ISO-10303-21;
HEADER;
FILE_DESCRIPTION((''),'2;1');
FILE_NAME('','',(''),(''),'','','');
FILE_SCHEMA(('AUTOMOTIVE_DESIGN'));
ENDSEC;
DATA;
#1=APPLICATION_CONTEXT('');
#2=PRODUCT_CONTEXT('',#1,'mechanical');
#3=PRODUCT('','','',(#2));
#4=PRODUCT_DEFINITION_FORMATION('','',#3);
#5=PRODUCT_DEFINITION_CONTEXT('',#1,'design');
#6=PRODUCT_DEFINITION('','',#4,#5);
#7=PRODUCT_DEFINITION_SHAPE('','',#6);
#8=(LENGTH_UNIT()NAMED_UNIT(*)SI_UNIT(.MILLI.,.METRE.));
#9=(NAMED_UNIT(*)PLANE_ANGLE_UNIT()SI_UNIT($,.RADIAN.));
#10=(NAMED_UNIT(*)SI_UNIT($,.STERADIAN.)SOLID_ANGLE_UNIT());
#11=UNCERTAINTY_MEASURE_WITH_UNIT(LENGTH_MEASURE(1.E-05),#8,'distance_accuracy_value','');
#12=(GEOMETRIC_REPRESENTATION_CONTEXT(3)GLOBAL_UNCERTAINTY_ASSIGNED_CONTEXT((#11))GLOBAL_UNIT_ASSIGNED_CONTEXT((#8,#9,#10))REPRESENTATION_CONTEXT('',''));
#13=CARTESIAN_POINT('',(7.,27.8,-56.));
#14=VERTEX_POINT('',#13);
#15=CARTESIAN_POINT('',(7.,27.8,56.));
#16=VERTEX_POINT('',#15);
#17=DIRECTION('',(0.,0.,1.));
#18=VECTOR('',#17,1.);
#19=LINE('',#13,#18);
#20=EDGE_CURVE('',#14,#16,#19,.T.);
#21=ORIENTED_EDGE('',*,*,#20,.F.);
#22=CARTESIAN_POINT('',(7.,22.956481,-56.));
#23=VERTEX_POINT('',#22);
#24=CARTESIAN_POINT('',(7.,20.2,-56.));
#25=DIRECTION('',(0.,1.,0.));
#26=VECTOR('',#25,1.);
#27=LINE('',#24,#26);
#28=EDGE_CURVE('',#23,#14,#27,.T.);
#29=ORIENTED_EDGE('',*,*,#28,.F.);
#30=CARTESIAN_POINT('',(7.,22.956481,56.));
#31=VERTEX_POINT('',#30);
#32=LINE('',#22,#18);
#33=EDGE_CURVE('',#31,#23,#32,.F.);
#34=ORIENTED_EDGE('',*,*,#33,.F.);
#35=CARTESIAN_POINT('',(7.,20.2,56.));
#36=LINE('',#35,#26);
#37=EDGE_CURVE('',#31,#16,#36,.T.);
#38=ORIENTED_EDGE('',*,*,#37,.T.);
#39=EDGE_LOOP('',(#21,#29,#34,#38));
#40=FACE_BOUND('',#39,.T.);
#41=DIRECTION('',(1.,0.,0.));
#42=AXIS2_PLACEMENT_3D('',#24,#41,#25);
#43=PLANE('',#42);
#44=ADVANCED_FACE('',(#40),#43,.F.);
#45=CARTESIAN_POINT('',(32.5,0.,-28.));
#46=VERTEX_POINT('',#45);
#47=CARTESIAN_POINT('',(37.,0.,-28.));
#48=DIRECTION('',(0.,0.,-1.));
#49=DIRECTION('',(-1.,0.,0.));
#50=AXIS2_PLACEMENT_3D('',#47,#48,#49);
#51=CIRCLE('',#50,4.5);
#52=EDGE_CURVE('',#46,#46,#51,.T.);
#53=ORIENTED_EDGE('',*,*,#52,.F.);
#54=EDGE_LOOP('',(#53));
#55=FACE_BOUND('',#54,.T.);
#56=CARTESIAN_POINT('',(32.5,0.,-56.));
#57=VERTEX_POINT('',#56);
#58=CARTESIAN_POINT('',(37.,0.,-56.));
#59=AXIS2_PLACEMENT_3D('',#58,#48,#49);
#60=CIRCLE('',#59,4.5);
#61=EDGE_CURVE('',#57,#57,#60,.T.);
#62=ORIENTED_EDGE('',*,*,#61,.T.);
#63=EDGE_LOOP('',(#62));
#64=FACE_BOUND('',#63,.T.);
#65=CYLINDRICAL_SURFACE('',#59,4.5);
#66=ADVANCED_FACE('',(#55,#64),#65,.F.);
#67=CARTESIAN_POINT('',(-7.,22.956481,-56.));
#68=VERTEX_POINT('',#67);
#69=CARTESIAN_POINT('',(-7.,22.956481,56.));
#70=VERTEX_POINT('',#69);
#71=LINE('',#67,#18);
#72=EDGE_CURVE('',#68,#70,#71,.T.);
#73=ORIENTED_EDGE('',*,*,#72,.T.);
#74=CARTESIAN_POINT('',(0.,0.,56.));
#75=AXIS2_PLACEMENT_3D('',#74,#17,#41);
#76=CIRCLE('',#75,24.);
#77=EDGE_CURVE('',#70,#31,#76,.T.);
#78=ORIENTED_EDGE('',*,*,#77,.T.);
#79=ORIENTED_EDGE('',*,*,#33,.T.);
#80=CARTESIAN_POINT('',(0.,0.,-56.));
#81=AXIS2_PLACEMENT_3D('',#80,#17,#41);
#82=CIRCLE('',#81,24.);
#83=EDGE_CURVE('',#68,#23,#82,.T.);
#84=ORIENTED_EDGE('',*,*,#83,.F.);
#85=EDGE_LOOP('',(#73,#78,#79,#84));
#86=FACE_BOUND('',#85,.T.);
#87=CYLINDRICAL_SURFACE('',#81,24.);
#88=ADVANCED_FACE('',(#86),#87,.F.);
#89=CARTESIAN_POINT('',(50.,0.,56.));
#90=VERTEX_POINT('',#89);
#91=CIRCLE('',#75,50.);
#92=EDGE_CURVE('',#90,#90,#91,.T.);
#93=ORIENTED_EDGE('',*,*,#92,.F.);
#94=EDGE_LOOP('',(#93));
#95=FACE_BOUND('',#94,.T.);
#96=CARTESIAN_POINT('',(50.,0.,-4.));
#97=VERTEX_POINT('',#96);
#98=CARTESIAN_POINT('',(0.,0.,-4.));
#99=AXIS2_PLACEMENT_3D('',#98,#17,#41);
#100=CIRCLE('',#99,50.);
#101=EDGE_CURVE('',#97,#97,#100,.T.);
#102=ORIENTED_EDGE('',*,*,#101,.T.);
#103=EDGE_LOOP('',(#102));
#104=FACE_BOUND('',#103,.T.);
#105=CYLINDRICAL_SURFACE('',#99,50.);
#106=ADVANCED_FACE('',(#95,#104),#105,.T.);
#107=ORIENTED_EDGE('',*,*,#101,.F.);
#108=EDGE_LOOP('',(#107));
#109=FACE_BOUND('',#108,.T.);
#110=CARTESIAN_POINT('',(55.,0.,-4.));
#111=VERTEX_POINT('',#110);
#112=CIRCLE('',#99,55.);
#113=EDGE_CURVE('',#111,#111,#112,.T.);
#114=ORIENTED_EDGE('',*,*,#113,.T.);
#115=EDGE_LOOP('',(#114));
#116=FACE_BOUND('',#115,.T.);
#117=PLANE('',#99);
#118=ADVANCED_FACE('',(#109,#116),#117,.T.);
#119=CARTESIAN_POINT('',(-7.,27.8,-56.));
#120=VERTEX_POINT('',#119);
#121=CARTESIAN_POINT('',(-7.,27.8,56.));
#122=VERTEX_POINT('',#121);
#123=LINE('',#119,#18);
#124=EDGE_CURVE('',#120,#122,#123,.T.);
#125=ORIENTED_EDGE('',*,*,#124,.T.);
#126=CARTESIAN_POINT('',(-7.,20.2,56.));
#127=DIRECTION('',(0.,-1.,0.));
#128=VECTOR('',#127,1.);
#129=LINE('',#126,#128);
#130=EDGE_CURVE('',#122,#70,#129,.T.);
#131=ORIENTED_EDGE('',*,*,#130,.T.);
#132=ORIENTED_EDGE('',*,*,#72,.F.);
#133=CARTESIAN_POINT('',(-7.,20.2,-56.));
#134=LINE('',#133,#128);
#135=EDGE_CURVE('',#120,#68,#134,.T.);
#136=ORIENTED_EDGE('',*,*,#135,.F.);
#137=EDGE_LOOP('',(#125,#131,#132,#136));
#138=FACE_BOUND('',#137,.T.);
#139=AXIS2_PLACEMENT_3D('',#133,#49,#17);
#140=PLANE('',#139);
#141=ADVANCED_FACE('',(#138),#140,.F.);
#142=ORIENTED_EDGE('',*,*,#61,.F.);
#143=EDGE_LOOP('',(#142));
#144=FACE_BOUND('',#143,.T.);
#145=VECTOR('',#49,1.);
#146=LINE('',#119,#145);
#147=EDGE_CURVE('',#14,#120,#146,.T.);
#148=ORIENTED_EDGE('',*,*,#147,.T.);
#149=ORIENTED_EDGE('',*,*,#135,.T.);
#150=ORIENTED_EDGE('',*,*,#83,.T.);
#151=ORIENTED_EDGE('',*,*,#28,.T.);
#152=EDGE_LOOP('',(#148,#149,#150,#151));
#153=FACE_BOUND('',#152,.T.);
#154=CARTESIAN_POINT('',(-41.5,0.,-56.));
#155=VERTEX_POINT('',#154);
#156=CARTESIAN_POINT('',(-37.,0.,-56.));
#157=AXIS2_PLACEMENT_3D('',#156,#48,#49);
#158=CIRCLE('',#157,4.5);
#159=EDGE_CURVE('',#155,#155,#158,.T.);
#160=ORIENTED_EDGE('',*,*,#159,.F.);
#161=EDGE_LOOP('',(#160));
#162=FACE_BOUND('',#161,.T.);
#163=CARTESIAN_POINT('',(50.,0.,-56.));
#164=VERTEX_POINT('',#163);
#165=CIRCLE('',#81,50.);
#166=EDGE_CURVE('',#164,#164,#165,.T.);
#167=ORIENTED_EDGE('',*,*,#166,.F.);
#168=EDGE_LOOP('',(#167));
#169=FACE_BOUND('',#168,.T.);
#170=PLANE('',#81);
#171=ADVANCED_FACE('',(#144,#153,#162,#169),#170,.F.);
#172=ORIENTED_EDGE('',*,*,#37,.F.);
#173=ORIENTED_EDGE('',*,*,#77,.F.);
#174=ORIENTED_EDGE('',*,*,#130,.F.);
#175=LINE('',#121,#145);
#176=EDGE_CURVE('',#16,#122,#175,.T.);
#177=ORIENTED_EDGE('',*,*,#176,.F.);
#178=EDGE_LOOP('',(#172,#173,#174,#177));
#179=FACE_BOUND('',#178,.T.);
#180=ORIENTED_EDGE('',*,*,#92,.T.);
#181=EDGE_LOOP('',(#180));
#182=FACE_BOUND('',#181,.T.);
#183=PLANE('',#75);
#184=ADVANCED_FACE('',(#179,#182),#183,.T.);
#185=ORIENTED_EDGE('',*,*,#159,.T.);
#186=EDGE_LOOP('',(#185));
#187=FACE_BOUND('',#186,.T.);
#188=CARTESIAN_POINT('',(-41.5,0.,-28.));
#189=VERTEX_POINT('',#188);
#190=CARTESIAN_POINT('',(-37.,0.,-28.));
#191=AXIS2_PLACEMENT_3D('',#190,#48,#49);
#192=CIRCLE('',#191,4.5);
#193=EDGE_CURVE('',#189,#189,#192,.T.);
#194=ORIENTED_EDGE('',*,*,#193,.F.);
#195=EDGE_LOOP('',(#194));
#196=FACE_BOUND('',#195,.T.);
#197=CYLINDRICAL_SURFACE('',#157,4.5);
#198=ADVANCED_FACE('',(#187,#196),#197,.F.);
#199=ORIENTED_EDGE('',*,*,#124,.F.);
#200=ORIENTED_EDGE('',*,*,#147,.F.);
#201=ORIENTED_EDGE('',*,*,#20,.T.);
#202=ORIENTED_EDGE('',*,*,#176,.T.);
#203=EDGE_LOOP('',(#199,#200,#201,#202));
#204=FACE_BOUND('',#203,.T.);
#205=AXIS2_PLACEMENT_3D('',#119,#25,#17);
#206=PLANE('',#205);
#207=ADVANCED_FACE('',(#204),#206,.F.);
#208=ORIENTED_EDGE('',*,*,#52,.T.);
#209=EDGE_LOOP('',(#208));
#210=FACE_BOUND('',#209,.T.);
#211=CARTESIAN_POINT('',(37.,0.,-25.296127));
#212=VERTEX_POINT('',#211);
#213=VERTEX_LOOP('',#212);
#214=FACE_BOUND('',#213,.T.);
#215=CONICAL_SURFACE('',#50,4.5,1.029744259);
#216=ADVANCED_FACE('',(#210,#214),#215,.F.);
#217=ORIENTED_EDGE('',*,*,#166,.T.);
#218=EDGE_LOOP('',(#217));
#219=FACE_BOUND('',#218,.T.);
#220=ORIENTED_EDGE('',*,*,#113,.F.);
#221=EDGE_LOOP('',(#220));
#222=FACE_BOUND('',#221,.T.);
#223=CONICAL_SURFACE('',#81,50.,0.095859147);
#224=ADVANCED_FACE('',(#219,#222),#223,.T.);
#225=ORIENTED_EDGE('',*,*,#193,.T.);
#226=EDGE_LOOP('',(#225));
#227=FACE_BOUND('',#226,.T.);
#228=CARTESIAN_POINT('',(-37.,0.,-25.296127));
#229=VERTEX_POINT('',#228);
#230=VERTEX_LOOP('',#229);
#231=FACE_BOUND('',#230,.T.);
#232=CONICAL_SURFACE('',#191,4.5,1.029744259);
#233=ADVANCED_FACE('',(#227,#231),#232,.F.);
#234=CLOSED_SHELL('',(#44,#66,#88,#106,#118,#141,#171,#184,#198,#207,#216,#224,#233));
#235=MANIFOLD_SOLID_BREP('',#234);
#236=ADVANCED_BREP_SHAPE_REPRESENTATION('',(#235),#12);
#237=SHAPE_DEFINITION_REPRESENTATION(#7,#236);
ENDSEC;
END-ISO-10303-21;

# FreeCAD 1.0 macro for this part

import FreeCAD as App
import Part
import Sketcher

V = App.Vector


def add_polygon(sketch, points):
    """Adds a closed chain of lines whose ends are joined by coincident constraints."""
    first, n = sketch.GeometryCount, len(points)
    for a, b in zip(points, points[1:] + points[:1]):
        sketch.addGeometry(Part.LineSegment(App.Vector(*a, 0), App.Vector(*b, 0)), False)
    for i in range(n):
        sketch.addConstraint(Sketcher.Constraint("Coincident", first + i, 2, first + (i + 1) % n, 1))

doc = App.newDocument("Part")
params = doc.addObject("Spreadsheet::Sheet", "Params")
for row, (alias, value) in enumerate([
    ("sketch1_diameter", "110 mm"),
    ("pad1_length", "112 mm"),
    ("sketch2_diameter", "48 mm"),
    ("pocket1_length", "112 mm"),
    ("sketch3_width", "14 mm"),
    ("sketch3_height", "7.6 mm"),
    ("sketch4_diameter", "100 mm"),
    ("pocket3_length", "60 mm"),
    ("sketch5_width", "5 mm"),
    ("sketch5_height", "52 mm"),
    ("groove_angle", "360 deg"),
    ("sketch6_diameter", "9 mm"),
    ("hole_diameter", "9 mm"),
    ("hole_depth", "28 mm"),
], start=1):
    params.set(f"A{row}", alias)
    params.set(f"B{row}", "=" + value)
    params.setAlias(f"B{row}", alias)

body = doc.addObject("PartDesign::Body", "Body")

# Sketch on XY plane
sketch1 = body.newObject("Sketcher::SketchObject", "Sketch")
sketch1.AttachmentSupport = (doc.getObject("XY_Plane"), [""])
sketch1.MapMode = "FlatFace"
sketch1.addGeometry(Part.Circle(V(0, 0, 0), V(0, 0, 1), 55), False)
sketch1.addConstraint([
    Sketcher.Constraint("Coincident", 0, 3, -1, 1),
    Sketcher.Constraint("Diameter", 0, 110.0),
])
sketch1.setExpression("Constraints[1]", "Params.sketch1_diameter")
pad1 = body.newObject("PartDesign::Pad", "Pad")
pad1.Profile = sketch1
pad1.setExpression("Length", "Params.pad1_length")
pad1.Midplane = True

# Sketch on XY plane
sketch2 = body.newObject("Sketcher::SketchObject", "Sketch001")
sketch2.AttachmentSupport = (doc.getObject("XY_Plane"), [""])
sketch2.MapMode = "FlatFace"
sketch2.AttachmentOffset = App.Placement(V(0, 0, 56), App.Rotation())
sketch2.addGeometry(Part.Circle(V(0, 0, 0), V(0, 0, 1), 24), False)
sketch2.addConstraint([
    Sketcher.Constraint("Coincident", 0, 3, -1, 1),
    Sketcher.Constraint("Diameter", 0, 48.0),
])
sketch2.setExpression("Constraints[1]", "Params.sketch2_diameter")
pocket1 = body.newObject("PartDesign::Pocket", "Pocket")
pocket1.Profile = sketch2
pocket1.setExpression("Length", "Params.pocket1_length")

# Sketch on XY plane
sketch3 = body.newObject("Sketcher::SketchObject", "Sketch002")
sketch3.AttachmentSupport = (doc.getObject("XY_Plane"), [""])
sketch3.MapMode = "FlatFace"
sketch3.AttachmentOffset = App.Placement(V(0, 0, 56), App.Rotation())
add_polygon(sketch3, [(-7, 28), (-7, 20), (7, 20), (7, 28)])  # lines 0-3
sketch3.addConstraint([
    Sketcher.Constraint("Vertical", 0),
    Sketcher.Constraint("Horizontal", 1),
    Sketcher.Constraint("Vertical", 2),
    Sketcher.Constraint("Horizontal", 3),
    Sketcher.Constraint("DistanceX", 1, 1, 1, 2, 14.0),
    Sketcher.Constraint("DistanceY", 0, 2, 0, 1, 7.6),
    Sketcher.Constraint("DistanceX", 0, 2, -1, 1, 7.0),
    Sketcher.Constraint("DistanceY", -1, 1, 0, 2, 20.2),
])
sketch3.setExpression("Constraints[8]", "Params.sketch3_width")
sketch3.setExpression("Constraints[9]", "Params.sketch3_height")
pocket2 = body.newObject("PartDesign::Pocket", "Pocket001")
pocket2.Profile = sketch3
pocket2.Type = "ThroughAll"

# Sketch on XY plane
sketch4 = body.newObject("Sketcher::SketchObject", "Sketch003")
sketch4.AttachmentSupport = (doc.getObject("XY_Plane"), [""])
sketch4.MapMode = "FlatFace"
sketch4.AttachmentOffset = App.Placement(V(0, 0, 56), App.Rotation())
add_polygon(sketch4, [(-75, 75), (-75, -75), (75, -75), (75, 75)])  # lines 0-3
sketch4.addGeometry(Part.Circle(V(0, 0, 0), V(0, 0, 1), 50), False)  # 4
sketch4.addConstraint([
    Sketcher.Constraint("Vertical", 0),
    Sketcher.Constraint("Horizontal", 1),
    Sketcher.Constraint("Vertical", 2),
    Sketcher.Constraint("Horizontal", 3),
    Sketcher.Constraint("Coincident", 4, 3, -1, 1),
    Sketcher.Constraint("Symmetric", 0, 2, 2, 2, -1, 1),
    Sketcher.Constraint("Equal", 3, 0),
    Sketcher.Constraint("Diameter", 4, 100.0),
    Sketcher.Constraint("DistanceX", 1, 1, 1, 2, 150.338),
])
sketch4.setExpression("Constraints[11]", "Params.sketch4_diameter")
pocket3 = body.newObject("PartDesign::Pocket", "Pocket002")
pocket3.Profile = sketch4
pocket3.setExpression("Length", "Params.pocket3_length")

# Sketch on XZ plane
sketch5 = body.newObject("Sketcher::SketchObject", "Sketch004")
sketch5.AttachmentSupport = (doc.getObject("XZ_Plane"), [""])
sketch5.MapMode = "FlatFace"
add_polygon(sketch5, [(50, -56), (55, -4), (55, -56)])  # lines 0-2
sketch5.addConstraint([
    Sketcher.Constraint("Vertical", 1),
    Sketcher.Constraint("Horizontal", 2),
    Sketcher.Constraint("DistanceX", 2, 2, 2, 1, 5.0),
    Sketcher.Constraint("DistanceY", 1, 2, 1, 1, 52.0),
    Sketcher.Constraint("DistanceX", -1, 1, 0, 2, 55.0),
    Sketcher.Constraint("DistanceY", 0, 2, -1, 1, 4.0),
])
sketch5.setExpression("Constraints[5]", "Params.sketch5_width")
sketch5.setExpression("Constraints[6]", "Params.sketch5_height")
groove = body.newObject("PartDesign::Groove", "Groove")
groove.Profile = sketch5
groove.ReferenceAxis = (sketch5, ["V_Axis"])
groove.setExpression("Angle", "Params.groove_angle")

# Sketch on XY plane
sketch6 = body.newObject("Sketcher::SketchObject", "Sketch005")
sketch6.AttachmentSupport = (doc.getObject("XY_Plane"), [""])
sketch6.MapMode = "FlatFace"
sketch6.AttachmentOffset = App.Placement(V(0, 0, -56), App.Rotation())
sketch6.addGeometry([
    Part.Circle(V(37, 0, 0), V(0, 0, 1), 4.5),
    Part.Circle(V(-37, 0, 0), V(0, 0, 1), 4.5),
], False)
sketch6.addConstraint([
    Sketcher.Constraint("Equal", 0, 1),
    Sketcher.Constraint("Symmetric", 0, 3, 1, 3, -1, 1),
    Sketcher.Constraint("PointOnObject", 0, 3, -1),
    Sketcher.Constraint("Diameter", 0, 9.0),
    Sketcher.Constraint("DistanceX", -1, 1, 0, 3, 37.0),
])
sketch6.setExpression("Constraints[3]", "Params.sketch6_diameter")
doc.recompute()
hole = body.newObject("PartDesign::Hole", "Hole")
hole.Profile = sketch6
hole.ThreadType = "None"
hole.setExpression("Diameter", "Params.hole_diameter")
hole.DepthType = "Dimension"
hole.setExpression("Depth", "Params.hole_depth")
hole.DrillPoint = "Angled"
hole.DrillPointAngle = 118
hole.Reversed = True

doc.recompute()
